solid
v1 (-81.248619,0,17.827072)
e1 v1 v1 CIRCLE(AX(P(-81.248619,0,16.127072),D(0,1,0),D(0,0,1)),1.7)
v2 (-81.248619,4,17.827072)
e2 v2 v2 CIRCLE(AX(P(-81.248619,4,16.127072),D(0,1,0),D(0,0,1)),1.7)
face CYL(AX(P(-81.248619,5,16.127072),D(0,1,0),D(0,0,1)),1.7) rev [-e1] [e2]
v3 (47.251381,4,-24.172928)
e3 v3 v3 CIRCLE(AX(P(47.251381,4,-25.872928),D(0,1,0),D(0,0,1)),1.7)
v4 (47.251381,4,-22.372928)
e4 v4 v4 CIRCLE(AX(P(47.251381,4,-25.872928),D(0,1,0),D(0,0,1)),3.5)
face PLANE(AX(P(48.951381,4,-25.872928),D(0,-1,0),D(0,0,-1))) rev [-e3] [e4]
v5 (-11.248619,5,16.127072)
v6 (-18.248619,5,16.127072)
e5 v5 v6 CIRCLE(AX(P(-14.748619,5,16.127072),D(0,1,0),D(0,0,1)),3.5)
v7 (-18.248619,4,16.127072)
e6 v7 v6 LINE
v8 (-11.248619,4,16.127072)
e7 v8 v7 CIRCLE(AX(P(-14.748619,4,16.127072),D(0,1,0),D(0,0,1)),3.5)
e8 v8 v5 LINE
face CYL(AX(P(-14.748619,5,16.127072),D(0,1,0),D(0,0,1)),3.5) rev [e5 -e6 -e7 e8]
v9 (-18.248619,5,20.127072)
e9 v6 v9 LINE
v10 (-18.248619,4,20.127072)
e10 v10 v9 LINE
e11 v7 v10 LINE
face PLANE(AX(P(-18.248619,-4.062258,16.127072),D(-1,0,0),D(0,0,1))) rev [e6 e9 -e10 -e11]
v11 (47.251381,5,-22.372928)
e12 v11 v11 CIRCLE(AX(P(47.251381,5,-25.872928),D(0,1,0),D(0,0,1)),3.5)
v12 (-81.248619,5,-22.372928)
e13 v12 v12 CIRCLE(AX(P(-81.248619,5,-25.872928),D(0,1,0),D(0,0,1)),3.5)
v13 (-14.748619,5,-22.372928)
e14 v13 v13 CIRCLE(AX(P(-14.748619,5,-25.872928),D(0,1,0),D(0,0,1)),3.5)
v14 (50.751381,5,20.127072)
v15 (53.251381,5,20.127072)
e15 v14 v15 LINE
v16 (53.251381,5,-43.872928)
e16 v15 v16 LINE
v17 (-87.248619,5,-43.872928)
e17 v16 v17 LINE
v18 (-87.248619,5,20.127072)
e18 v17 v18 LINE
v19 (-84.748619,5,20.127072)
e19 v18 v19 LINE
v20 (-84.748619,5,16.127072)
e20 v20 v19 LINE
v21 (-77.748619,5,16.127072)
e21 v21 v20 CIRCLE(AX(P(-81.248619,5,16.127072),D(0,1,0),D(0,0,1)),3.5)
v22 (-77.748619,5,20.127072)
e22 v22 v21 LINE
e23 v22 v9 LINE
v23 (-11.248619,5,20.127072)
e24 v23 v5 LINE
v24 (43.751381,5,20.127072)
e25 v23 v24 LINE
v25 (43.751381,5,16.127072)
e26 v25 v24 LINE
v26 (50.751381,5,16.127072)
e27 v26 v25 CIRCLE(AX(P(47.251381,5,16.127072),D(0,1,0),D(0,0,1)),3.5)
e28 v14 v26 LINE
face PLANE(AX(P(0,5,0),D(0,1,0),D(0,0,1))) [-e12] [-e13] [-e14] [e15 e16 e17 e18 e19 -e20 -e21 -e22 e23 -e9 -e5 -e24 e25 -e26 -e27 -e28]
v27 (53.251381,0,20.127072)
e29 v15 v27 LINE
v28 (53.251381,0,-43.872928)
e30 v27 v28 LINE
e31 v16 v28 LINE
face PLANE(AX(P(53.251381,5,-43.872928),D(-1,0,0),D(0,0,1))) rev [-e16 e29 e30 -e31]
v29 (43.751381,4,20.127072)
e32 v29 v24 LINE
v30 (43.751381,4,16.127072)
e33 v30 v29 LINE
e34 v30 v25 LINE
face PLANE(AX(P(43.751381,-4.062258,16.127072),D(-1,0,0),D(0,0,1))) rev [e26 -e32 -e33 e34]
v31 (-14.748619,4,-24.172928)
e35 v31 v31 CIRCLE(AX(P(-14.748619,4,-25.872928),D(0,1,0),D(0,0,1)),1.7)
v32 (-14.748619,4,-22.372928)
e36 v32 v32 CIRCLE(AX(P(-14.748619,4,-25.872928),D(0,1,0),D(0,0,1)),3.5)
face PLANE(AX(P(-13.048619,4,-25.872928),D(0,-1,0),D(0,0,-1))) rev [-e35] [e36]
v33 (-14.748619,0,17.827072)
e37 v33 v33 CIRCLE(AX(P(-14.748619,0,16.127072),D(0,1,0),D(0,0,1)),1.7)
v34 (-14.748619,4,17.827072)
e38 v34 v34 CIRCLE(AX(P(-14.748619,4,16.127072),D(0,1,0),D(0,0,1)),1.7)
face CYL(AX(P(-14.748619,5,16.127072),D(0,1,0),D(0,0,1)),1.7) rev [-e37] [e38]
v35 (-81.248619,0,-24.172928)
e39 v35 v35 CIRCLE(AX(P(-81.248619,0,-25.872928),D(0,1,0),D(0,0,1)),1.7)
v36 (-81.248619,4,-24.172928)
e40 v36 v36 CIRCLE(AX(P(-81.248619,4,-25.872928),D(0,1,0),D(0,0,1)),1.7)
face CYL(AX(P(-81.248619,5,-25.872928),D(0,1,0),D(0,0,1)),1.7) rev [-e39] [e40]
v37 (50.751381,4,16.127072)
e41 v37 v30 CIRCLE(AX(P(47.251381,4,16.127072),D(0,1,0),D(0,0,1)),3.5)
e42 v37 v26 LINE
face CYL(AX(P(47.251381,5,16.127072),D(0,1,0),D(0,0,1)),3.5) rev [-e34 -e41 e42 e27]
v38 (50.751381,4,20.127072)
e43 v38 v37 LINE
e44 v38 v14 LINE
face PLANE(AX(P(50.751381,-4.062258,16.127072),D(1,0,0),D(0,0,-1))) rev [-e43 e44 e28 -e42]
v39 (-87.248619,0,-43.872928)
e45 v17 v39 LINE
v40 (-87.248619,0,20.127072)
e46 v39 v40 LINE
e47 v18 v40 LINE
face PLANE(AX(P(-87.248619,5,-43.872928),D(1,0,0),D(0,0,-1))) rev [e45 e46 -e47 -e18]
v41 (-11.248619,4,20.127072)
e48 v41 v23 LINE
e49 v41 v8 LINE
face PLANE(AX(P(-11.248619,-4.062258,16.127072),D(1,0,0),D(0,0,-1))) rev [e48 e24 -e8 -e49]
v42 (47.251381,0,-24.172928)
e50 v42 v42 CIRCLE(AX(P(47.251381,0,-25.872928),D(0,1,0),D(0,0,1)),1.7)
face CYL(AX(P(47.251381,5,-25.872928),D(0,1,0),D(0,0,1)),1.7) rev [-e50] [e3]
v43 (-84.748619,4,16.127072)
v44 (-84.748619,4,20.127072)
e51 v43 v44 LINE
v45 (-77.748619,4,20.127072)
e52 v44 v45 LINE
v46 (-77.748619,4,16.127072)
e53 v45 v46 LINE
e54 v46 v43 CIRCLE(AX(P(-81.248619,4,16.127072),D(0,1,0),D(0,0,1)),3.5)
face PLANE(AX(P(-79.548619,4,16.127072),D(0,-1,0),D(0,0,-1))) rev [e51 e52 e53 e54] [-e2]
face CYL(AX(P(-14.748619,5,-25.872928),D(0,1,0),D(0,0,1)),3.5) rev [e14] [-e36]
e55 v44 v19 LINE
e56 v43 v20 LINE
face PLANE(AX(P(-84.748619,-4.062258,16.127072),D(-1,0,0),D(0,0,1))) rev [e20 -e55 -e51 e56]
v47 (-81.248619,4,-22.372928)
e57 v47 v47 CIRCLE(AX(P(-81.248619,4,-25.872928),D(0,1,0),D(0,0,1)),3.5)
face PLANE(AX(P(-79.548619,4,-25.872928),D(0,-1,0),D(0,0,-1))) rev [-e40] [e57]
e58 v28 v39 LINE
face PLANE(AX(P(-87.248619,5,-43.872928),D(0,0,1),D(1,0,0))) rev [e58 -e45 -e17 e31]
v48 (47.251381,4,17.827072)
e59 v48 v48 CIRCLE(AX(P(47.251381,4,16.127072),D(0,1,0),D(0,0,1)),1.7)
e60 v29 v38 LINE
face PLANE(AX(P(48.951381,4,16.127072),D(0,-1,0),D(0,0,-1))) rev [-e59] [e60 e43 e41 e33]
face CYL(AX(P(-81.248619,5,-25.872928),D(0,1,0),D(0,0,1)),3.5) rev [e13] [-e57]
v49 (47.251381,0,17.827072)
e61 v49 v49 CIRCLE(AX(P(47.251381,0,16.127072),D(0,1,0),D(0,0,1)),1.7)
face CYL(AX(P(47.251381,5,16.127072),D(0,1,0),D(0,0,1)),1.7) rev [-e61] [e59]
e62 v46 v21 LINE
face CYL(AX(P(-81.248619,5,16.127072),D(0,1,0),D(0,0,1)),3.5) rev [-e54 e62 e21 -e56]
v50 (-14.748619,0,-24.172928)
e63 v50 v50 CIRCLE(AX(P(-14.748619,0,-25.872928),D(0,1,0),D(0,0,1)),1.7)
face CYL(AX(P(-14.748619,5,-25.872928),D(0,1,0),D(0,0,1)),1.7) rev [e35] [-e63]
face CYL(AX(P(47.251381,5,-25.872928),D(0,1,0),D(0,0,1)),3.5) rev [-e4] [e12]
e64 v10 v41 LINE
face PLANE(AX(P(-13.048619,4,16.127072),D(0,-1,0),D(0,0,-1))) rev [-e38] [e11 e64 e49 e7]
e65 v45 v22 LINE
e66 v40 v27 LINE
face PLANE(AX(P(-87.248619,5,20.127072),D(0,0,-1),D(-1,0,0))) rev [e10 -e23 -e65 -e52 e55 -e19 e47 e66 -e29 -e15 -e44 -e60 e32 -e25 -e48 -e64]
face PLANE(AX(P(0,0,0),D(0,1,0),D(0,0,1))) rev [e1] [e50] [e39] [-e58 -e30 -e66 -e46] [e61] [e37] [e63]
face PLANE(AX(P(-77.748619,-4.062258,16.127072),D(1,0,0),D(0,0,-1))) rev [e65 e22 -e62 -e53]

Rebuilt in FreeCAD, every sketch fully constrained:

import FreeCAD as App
import Part
import Sketcher


def add_polygon(sketch, points):
    """Adds a closed chain of lines whose ends are joined by coincident constraints."""
    first, n = sketch.GeometryCount, len(points)
    for a, b in zip(points, points[1:] + points[:1]):
        sketch.addGeometry(Part.LineSegment(App.Vector(*a, 0), App.Vector(*b, 0)), False)
    for i in range(n):
        sketch.addConstraint(Sketcher.Constraint("Coincident", first + i, 2, first + (i + 1) % n, 1))

doc = App.newDocument("Part")
body = doc.addObject("PartDesign::Body", "Body")

# Sketch on XZ plane
sketch1 = body.newObject("Sketcher::SketchObject", "Sketch")
sketch1.AttachmentSupport = (doc.getObject("XZ_Plane"), [""])
sketch1.MapMode = "FlatFace"
add_polygon(sketch1, [(-87.248619, -43.872928), (-87.248619, 20.127072), (53.251381, 20.127072), (53.251381, -43.872928)])  # lines 0-3
sketch1.addConstraint([
    Sketcher.Constraint("Vertical", 0),
    Sketcher.Constraint("Horizontal", 1),
    Sketcher.Constraint("Vertical", 2),
    Sketcher.Constraint("Horizontal", 3),
    Sketcher.Constraint("DistanceY", 0, 1, 0, 2, 64.0),
    Sketcher.Constraint("DistanceX", 1, 1, 1, 2, 140.5),
    Sketcher.Constraint("DistanceX", 0, 2, -1, 1, 87.248619),
    Sketcher.Constraint("DistanceY", -1, 1, 0, 2, 20.127072),
])
pad1 = body.newObject("PartDesign::Pad", "Pad")
pad1.Profile = sketch1
pad1.Length = 5
pad1.Reversed = True

# Sketch on XZ plane
sketch2 = body.newObject("Sketcher::SketchObject", "Sketch001")
sketch2.AttachmentSupport = (doc.getObject("XZ_Plane"), [""])
sketch2.MapMode = "FlatFace"
sketch2.AttachmentOffset = App.Placement(App.Vector(0, 0, -5), App.Rotation())
sketch2.addGeometry([
    Part.Circle(App.Vector(-81.248619, -25.872928, 0), App.Vector(0, 0, 1), 1.7),  # 0
    Part.Circle(App.Vector(-81.248619, 16.127072, 0), App.Vector(0, 0, 1), 1.7),  # 1
    Part.Circle(App.Vector(-14.748619, -25.872928, 0), App.Vector(0, 0, 1), 1.7),  # 2
    Part.Circle(App.Vector(-14.748619, 16.127072, 0), App.Vector(0, 0, 1), 1.7),  # 3
    Part.Circle(App.Vector(47.251381, -25.872928, 0), App.Vector(0, 0, 1), 1.7),  # 4
    Part.Circle(App.Vector(47.251381, 16.127072, 0), App.Vector(0, 0, 1), 1.7),  # 5
], False)
sketch2.addConstraint([
    Sketcher.Constraint("Equal", 0, 1),
    Sketcher.Constraint("Equal", 1, 2),
    Sketcher.Constraint("Equal", 2, 3),
    Sketcher.Constraint("Equal", 3, 4),
    Sketcher.Constraint("Equal", 4, 5),
    Sketcher.Constraint("Horizontal", 0, 3, 2, 3),
    Sketcher.Constraint("Horizontal", 1, 3, 3, 3),
    Sketcher.Constraint("Horizontal", 2, 3, 4, 3),
    Sketcher.Constraint("Horizontal", 3, 3, 5, 3),
    Sketcher.Constraint("Vertical", 0, 3, 1, 3),
    Sketcher.Constraint("Vertical", 2, 3, 3, 3),
    Sketcher.Constraint("Vertical", 4, 3, 5, 3),
    Sketcher.Constraint("Diameter", 0, 3.4),
    Sketcher.Constraint("DistanceY", 0, 3, 1, 3, 42.0),
    Sketcher.Constraint("DistanceX", 2, 3, 4, 3, 62.0),
    Sketcher.Constraint("DistanceX", 0, 3, 2, 3, 66.5),
    Sketcher.Constraint("DistanceX", 0, 3, -1, 1, 81.248619),
    Sketcher.Constraint("DistanceY", 0, 3, -1, 1, 25.872928),
])
doc.recompute()
hole = body.newObject("PartDesign::Hole", "Hole")
hole.Profile = sketch2
hole.ThreadType = "None"
hole.Diameter = 3.4
hole.DepthType = "ThroughAll"
hole.HoleCutType = "Counterbore"
hole.HoleCutDiameter = 7
hole.HoleCutDepth = 1
hole.Reversed = True

# Sketch on XZ plane
sketch3 = body.newObject("Sketcher::SketchObject", "Sketch002")
sketch3.AttachmentSupport = (doc.getObject("XZ_Plane"), [""])
sketch3.MapMode = "FlatFace"
sketch3.AttachmentOffset = App.Placement(App.Vector(0, 0, -5), App.Rotation())
add_polygon(sketch3, [(-84.748619, 16.127072), (-84.748619, 20.127072), (-77.748619, 20.127072), (-77.748619, 16.127072)])  # lines 0-3
add_polygon(sketch3, [(-18.248619, 16.127072), (-18.248619, 20.127072), (-11.248619, 20.127072), (-11.248619, 16.127072)])  # lines 4-7
add_polygon(sketch3, [(43.751381, 16.127072), (43.751381, 20.127072), (50.751381, 20.127072), (50.751381, 16.127072)])  # lines 8-11
sketch3.addConstraint([
    Sketcher.Constraint("Vertical", 0),
    Sketcher.Constraint("Horizontal", 1),
    Sketcher.Constraint("Vertical", 2),
    Sketcher.Constraint("Horizontal", 3),
    Sketcher.Constraint("Vertical", 4),
    Sketcher.Constraint("Horizontal", 5),
    Sketcher.Constraint("Vertical", 6),
    Sketcher.Constraint("Horizontal", 7),
    Sketcher.Constraint("Vertical", 8),
    Sketcher.Constraint("Horizontal", 9),
    Sketcher.Constraint("Vertical", 10),
    Sketcher.Constraint("Horizontal", 11),
    Sketcher.Constraint("Horizontal", 1, 2, 4, 2),
    Sketcher.Constraint("Horizontal", 3, 2, 6, 2),
    Sketcher.Constraint("Horizontal", 5, 2, 8, 2),
    Sketcher.Constraint("Horizontal", 7, 2, 10, 2),
    Sketcher.Constraint("Equal", 3, 5),
    Sketcher.Constraint("Equal", 7, 9),
    Sketcher.Constraint("DistanceX", 1, 1, 1, 2, 7.0),
    Sketcher.Constraint("DistanceY", 0, 1, 0, 2, 4.0),
    Sketcher.Constraint("DistanceX", 5, 2, 8, 2, 55.0),
    Sketcher.Constraint("DistanceX", 1, 2, 4, 2, 59.5),
    Sketcher.Constraint("DistanceX", 0, 2, -1, 1, 84.748619),
    Sketcher.Constraint("DistanceY", -1, 1, 0, 2, 20.127072),
])
pocket1 = body.newObject("PartDesign::Pocket", "Pocket")
pocket1.Profile = sketch3
pocket1.Length = 1
pocket1.Reversed = True

doc.recompute()
